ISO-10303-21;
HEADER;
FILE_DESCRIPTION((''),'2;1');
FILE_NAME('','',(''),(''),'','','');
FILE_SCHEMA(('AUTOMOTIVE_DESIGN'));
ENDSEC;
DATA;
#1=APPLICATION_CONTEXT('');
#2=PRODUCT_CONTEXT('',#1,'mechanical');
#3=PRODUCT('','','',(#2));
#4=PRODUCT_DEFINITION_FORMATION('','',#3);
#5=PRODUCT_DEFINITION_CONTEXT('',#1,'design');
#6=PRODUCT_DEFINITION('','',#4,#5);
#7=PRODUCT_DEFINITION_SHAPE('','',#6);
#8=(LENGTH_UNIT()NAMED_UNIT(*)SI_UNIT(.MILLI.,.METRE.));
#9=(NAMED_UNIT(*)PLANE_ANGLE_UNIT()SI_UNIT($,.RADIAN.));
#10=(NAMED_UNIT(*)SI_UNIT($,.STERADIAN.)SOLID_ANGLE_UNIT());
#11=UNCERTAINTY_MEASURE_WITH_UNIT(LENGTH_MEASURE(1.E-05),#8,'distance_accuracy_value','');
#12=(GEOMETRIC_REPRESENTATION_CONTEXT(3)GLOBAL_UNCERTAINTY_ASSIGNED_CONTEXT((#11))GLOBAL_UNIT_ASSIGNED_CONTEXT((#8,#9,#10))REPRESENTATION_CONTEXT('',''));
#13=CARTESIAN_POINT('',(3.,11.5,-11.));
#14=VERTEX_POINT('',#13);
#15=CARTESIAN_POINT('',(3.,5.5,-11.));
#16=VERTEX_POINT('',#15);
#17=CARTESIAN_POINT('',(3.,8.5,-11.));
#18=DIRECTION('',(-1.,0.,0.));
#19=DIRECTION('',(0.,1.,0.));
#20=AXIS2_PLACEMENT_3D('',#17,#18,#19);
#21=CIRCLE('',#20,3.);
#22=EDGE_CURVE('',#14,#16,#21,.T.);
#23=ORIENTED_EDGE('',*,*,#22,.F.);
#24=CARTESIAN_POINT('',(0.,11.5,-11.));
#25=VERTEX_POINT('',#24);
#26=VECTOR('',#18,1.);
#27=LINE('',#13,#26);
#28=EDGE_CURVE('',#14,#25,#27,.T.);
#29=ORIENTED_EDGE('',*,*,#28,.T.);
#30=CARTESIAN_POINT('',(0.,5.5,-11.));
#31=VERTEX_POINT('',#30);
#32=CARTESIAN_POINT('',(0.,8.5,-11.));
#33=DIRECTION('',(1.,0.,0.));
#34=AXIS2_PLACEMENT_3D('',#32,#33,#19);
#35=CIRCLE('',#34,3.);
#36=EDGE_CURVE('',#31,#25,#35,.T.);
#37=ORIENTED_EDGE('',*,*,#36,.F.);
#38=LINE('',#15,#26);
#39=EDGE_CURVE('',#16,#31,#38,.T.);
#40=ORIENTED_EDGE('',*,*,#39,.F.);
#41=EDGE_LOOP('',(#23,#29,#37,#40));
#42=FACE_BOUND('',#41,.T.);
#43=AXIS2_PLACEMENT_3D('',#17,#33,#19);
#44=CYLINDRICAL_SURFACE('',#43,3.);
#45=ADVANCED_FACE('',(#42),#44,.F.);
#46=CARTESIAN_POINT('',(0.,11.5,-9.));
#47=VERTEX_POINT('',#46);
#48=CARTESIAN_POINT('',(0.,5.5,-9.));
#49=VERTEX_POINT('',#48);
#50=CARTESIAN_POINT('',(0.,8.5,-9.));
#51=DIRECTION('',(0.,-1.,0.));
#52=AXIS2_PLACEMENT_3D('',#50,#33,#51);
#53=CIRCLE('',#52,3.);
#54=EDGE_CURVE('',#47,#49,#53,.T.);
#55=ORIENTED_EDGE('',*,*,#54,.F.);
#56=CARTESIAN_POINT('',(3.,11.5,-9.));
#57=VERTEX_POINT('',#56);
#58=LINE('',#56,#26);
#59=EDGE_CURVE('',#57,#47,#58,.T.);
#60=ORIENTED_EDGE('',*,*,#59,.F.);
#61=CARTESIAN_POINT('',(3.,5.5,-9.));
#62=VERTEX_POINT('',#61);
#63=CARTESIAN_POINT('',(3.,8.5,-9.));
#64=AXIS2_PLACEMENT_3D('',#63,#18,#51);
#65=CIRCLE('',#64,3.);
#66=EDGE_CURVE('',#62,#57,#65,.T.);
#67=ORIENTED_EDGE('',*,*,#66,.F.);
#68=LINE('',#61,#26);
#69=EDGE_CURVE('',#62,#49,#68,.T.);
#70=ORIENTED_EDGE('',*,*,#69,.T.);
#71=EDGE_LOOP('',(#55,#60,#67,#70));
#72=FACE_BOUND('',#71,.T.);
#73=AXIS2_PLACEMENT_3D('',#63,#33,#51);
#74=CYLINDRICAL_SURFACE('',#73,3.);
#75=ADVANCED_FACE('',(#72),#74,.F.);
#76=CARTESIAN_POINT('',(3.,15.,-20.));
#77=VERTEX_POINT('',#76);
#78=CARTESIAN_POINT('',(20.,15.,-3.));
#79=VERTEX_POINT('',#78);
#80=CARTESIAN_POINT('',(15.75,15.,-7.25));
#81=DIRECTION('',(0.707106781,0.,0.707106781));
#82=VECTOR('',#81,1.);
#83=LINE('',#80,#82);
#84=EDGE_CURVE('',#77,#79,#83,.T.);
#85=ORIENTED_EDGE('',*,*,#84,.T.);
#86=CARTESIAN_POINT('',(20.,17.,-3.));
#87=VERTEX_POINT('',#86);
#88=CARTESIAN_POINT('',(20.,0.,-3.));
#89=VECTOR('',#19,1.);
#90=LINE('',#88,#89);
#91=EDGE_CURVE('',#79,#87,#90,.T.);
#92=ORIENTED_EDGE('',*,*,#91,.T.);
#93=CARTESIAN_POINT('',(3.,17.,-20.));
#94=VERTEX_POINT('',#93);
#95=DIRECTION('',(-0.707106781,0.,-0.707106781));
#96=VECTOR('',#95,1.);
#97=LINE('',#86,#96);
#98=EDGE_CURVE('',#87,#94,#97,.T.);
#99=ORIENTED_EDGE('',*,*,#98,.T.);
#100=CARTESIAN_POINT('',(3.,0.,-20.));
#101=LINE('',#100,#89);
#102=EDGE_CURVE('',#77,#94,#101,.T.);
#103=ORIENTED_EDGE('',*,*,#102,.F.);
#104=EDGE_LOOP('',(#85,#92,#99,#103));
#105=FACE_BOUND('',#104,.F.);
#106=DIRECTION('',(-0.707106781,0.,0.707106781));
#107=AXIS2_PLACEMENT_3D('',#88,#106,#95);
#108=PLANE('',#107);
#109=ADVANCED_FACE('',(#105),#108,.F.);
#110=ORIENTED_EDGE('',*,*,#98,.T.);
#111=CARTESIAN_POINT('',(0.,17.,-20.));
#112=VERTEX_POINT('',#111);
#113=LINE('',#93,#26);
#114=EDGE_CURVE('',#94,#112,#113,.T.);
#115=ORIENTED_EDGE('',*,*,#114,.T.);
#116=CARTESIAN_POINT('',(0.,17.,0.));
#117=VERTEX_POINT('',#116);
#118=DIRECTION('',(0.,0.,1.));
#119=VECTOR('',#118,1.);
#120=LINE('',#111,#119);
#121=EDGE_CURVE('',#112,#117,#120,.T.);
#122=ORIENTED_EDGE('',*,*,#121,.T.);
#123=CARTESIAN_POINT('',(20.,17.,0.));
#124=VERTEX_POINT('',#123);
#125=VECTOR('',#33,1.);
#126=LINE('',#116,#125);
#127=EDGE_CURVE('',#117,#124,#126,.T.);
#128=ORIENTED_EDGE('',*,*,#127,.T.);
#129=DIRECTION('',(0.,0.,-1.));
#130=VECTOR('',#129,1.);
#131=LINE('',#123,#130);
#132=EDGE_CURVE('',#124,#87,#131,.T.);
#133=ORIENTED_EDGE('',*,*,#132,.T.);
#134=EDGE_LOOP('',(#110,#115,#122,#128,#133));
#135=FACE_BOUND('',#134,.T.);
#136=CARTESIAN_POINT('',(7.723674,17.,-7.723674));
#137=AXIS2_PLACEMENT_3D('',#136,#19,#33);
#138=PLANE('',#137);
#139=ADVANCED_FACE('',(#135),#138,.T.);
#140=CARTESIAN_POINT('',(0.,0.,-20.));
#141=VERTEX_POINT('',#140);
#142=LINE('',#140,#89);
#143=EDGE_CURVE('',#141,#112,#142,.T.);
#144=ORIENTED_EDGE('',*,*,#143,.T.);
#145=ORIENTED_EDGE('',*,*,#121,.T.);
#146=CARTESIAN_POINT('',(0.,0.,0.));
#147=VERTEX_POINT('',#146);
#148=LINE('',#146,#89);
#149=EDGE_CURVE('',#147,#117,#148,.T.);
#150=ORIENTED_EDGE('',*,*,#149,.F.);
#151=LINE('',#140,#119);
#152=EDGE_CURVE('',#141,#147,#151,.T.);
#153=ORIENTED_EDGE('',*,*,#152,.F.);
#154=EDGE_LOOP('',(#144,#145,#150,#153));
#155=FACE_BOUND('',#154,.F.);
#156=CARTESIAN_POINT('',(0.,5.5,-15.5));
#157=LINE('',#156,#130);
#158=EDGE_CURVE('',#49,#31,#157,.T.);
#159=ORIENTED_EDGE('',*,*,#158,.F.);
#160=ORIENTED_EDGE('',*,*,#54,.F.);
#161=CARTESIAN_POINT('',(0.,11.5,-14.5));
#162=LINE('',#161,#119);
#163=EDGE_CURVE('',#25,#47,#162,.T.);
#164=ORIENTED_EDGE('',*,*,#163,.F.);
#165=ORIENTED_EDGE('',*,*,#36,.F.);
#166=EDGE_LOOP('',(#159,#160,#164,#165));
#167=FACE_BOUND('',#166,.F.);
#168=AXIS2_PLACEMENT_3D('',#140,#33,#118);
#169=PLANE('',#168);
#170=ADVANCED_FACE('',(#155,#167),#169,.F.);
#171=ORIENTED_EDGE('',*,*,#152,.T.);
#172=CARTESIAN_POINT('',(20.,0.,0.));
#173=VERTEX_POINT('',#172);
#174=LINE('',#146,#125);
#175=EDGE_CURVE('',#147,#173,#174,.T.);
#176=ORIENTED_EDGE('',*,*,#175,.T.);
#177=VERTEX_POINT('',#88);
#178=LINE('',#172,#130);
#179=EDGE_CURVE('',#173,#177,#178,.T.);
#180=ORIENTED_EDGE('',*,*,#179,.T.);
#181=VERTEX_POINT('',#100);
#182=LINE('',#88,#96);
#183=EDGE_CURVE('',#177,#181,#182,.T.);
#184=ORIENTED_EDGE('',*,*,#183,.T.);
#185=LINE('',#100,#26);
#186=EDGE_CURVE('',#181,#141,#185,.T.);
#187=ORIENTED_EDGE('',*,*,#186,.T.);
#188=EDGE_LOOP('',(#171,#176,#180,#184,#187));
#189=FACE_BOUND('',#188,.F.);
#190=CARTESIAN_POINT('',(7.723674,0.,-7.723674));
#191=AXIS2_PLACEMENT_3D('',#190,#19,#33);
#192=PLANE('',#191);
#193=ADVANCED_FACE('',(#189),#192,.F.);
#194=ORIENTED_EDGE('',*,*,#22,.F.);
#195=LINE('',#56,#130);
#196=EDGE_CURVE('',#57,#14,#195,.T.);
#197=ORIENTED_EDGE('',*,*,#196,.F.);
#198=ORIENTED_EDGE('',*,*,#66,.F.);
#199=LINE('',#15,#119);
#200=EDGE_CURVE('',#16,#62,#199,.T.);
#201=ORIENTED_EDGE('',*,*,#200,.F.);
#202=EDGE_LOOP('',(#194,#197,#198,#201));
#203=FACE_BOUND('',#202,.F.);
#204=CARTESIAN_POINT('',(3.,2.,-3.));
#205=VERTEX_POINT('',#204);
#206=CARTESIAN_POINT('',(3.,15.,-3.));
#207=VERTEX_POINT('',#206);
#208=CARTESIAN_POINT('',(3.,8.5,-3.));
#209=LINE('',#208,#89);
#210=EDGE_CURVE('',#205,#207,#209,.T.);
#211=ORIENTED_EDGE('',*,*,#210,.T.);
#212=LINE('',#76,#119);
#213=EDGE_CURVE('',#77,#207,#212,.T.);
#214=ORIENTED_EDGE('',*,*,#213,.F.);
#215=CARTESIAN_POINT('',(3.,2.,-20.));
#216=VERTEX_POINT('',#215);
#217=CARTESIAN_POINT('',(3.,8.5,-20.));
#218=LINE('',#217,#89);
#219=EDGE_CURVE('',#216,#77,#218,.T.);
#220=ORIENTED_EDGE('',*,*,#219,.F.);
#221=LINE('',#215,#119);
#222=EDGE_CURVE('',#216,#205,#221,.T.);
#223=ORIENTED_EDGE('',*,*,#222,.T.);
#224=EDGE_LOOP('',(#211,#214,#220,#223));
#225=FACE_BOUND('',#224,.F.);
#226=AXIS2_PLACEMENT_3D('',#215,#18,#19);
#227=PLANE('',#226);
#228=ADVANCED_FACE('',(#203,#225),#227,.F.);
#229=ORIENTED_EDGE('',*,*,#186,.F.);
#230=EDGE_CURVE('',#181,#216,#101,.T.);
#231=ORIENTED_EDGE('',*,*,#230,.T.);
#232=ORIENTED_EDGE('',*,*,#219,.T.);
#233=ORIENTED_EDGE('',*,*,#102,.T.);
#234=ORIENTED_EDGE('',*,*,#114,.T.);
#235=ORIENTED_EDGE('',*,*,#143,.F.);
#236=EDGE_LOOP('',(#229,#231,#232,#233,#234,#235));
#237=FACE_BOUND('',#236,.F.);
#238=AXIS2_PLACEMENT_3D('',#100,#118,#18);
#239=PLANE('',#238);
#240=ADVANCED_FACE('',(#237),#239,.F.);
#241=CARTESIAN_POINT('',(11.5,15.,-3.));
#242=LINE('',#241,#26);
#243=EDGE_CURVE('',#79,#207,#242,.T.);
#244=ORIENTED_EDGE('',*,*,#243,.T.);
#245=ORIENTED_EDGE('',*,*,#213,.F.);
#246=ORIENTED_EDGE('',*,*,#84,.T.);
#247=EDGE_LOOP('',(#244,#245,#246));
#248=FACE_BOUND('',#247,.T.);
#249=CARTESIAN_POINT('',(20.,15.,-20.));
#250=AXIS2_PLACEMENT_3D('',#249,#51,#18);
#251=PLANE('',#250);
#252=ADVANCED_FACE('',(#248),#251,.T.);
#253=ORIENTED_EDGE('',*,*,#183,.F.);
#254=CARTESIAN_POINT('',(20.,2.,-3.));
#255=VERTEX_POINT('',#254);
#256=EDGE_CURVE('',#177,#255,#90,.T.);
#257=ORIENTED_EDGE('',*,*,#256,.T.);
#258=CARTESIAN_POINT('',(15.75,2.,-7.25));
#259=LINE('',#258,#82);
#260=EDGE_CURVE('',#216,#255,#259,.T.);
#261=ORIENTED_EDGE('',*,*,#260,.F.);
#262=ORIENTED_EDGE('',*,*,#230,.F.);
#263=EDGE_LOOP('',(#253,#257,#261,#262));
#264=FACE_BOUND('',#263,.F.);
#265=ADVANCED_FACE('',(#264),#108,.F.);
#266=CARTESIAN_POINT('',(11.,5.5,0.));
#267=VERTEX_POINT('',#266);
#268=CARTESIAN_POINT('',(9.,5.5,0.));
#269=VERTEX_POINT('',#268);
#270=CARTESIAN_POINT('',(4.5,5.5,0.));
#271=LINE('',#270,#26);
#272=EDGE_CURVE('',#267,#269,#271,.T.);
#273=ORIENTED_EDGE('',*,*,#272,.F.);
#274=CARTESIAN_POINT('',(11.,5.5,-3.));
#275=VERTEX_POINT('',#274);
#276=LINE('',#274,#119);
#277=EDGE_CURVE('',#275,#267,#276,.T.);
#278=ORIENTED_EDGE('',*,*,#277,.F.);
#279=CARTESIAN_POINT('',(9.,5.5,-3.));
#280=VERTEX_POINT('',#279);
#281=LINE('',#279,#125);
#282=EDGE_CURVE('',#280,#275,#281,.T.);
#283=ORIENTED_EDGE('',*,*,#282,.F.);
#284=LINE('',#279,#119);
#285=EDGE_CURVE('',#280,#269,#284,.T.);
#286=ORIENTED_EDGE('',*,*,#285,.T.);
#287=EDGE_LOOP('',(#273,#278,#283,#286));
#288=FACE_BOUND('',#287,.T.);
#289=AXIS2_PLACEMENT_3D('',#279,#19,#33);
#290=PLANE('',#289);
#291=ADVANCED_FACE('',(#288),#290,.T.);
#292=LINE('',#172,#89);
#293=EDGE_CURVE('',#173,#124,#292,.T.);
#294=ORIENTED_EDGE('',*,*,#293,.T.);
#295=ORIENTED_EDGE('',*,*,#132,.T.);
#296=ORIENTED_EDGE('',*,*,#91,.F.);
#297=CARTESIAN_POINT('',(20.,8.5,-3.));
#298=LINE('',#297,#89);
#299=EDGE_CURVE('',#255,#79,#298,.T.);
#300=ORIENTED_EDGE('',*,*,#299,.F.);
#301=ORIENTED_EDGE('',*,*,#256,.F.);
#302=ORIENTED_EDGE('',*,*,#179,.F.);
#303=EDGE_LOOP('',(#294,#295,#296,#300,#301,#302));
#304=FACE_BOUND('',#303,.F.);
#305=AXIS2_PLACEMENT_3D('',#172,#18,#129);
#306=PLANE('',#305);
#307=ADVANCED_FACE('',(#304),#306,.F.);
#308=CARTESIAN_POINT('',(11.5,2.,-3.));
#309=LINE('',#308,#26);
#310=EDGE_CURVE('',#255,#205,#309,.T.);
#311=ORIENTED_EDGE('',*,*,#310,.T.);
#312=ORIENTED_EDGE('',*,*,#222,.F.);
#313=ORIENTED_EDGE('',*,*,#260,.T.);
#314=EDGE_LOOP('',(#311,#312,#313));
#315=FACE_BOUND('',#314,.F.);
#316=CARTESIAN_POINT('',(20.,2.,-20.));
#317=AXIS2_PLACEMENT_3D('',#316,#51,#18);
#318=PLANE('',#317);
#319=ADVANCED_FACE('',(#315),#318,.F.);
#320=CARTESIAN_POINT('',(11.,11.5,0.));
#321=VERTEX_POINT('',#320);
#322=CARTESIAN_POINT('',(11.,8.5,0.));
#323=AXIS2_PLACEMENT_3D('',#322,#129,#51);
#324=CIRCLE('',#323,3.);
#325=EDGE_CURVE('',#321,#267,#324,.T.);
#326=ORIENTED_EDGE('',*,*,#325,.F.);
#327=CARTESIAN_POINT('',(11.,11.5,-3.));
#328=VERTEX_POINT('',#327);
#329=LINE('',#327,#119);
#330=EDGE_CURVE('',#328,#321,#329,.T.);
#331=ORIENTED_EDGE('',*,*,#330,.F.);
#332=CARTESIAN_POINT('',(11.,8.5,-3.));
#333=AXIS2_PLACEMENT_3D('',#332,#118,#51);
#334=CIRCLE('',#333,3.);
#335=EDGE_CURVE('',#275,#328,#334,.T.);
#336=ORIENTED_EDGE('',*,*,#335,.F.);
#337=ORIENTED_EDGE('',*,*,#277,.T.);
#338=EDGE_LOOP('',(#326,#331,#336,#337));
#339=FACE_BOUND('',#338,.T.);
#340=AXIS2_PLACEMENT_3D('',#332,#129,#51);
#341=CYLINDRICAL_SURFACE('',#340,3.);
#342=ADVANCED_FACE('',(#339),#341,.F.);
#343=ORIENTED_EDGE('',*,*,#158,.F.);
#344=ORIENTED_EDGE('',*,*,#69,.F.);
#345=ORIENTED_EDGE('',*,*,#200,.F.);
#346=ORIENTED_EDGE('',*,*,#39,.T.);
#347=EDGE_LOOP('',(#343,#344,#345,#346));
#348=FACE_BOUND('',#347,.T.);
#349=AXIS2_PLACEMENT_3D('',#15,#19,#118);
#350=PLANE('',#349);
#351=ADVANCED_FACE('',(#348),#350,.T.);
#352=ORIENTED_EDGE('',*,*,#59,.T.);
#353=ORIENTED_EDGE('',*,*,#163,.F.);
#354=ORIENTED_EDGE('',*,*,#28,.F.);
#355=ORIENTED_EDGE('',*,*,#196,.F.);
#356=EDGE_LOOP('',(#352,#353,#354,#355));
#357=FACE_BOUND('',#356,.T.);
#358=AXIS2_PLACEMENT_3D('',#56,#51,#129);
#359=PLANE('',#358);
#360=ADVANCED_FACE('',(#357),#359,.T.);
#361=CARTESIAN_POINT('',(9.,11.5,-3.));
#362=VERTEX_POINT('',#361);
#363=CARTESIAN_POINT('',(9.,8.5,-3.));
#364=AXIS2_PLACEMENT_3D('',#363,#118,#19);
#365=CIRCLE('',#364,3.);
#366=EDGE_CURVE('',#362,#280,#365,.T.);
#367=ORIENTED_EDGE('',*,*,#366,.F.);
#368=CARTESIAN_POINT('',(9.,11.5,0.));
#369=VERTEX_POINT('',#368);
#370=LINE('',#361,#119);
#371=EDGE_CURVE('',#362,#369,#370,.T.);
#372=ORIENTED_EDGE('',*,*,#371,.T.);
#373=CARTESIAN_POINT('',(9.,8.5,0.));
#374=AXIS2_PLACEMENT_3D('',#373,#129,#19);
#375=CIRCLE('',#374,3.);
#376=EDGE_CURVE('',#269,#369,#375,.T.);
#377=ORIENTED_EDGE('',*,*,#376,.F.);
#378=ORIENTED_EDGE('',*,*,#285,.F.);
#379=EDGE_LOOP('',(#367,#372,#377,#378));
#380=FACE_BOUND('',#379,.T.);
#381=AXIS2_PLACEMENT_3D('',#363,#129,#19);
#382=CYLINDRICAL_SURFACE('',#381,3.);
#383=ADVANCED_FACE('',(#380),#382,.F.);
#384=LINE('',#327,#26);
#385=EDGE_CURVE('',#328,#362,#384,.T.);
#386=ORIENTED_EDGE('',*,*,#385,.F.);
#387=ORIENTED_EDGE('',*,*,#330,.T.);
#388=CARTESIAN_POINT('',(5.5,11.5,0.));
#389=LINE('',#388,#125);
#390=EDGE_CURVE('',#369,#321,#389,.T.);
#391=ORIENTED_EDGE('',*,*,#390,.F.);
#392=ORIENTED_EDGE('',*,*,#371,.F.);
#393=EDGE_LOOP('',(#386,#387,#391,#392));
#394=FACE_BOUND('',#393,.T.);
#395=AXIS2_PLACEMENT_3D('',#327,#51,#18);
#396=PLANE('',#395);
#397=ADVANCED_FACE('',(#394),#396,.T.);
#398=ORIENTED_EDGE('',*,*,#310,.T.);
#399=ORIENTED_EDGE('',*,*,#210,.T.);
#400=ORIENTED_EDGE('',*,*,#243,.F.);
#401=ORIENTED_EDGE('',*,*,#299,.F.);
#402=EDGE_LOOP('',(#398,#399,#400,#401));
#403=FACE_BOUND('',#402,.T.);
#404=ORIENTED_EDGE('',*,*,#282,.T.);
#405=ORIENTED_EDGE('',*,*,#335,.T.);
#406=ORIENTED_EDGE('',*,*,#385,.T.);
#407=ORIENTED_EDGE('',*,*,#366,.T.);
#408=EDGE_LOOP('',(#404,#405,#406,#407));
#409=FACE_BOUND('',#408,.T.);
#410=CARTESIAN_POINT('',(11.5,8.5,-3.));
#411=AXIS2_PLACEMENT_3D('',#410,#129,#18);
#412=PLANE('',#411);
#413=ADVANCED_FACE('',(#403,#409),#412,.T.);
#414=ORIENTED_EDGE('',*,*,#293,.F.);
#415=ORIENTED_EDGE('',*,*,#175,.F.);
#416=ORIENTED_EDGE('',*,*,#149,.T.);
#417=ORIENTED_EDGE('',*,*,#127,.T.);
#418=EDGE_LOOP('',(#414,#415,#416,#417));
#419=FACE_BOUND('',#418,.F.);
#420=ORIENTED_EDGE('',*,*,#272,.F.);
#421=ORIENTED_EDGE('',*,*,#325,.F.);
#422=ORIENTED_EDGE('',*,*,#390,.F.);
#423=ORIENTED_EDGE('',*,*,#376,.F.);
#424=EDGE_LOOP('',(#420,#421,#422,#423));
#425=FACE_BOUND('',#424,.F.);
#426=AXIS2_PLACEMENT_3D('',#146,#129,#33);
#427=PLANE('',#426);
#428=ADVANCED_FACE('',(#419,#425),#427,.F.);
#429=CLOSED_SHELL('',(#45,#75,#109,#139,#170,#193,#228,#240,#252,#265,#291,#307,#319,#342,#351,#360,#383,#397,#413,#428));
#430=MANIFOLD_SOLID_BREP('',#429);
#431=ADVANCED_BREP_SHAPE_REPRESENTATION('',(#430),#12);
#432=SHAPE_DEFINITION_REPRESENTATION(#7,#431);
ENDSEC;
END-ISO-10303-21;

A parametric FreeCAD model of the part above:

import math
import FreeCAD as App
import Part
import Sketcher
Q = App.Units.Quantity


def add_polygon(sketch, points):
    """Adds a closed chain of lines whose ends are joined by coincident constraints."""
    first, n = sketch.GeometryCount, len(points)
    for a, b in zip(points, points[1:] + points[:1]):
        sketch.addGeometry(Part.LineSegment(App.Vector(*a, 0), App.Vector(*b, 0)), False)
    for i in range(n):
        sketch.addConstraint(Sketcher.Constraint("Coincident", first + i, 2, first + (i + 1) % n, 1))

doc = App.newDocument("Part")
body = doc.addObject("PartDesign::Body", "Body")

# Sketch on XZ plane
sketch1 = body.newObject("Sketcher::SketchObject", "Sketch")
sketch1.AttachmentSupport = (doc.getObject("XZ_Plane"), [""])
sketch1.MapMode = "FlatFace"
add_polygon(sketch1, [(0, 0), (20, 0), (20, -3), (3, -20), (0, -20)])  # lines 0-4
sketch1.addConstraint(Sketcher.Constraint("Horizontal", 0))
sketch1.addConstraint(Sketcher.Constraint("Vertical", 1))
sketch1.addConstraint(Sketcher.Constraint("Horizontal", 3))
sketch1.addConstraint(Sketcher.Constraint("Vertical", 4))
sketch1.addConstraint(Sketcher.Constraint("Coincident", 4, 2, -1, 1))
sketch1.addConstraint(Sketcher.Constraint("Equal", 3, 1))
sketch1.addConstraint(Sketcher.Constraint("Equal", 0, 4))
sketch1.addConstraint(Sketcher.Constraint("DistanceX", 0, 1, 0, 2, Q("20 mm")))
sketch1.addConstraint(Sketcher.Constraint("DistanceX", 3, 2, 3, 1, Q("3 mm")))
pad1 = body.newObject("PartDesign::Pad", "Pad")
pad1.Profile = sketch1
pad1.Length = 17
pad1.Reversed = True

# Sketch on XY plane
sketch2 = body.newObject("Sketcher::SketchObject", "Sketch001")
sketch2.AttachmentSupport = (doc.getObject("XY_Plane"), [""])
sketch2.MapMode = "FlatFace"
sketch2.AttachmentOffset = App.Placement(App.Vector(0, 0, -20), App.Rotation())
add_polygon(sketch2, [(20, 15), (20, 2), (3, 2), (3, 15)])  # lines 0-3
sketch2.addConstraint(Sketcher.Constraint("Vertical", 0))
sketch2.addConstraint(Sketcher.Constraint("Horizontal", 1))
sketch2.addConstraint(Sketcher.Constraint("Vertical", 2))
sketch2.addConstraint(Sketcher.Constraint("Horizontal", 3))
sketch2.addConstraint(Sketcher.Constraint("DistanceX", 1, 2, 1, 1, Q("17 mm")))
sketch2.addConstraint(Sketcher.Constraint("DistanceY", 0, 2, 0, 1, Q("13 mm")))
sketch2.addConstraint(Sketcher.Constraint("DistanceX", -1, 1, 0, 2, Q("20 mm")))
sketch2.addConstraint(Sketcher.Constraint("DistanceY", -1, 1, 0, 2, Q("2 mm")))
pocket1 = body.newObject("PartDesign::Pocket", "Pocket")
pocket1.Profile = sketch2
pocket1.Length = 17
pocket1.Reversed = True

# Sketch on YZ plane
sketch3 = body.newObject("Sketcher::SketchObject", "Sketch002")
sketch3.AttachmentSupport = (doc.getObject("YZ_Plane"), [""])
sketch3.MapMode = "FlatFace"
sketch3.AttachmentOffset = App.Placement(App.Vector(0, 0, 3), App.Rotation())
sketch3.addGeometry(Part.LineSegment(App.Vector(11.5, -11, 0), App.Vector(11.5, -9, 0)), False)
sketch3.addGeometry(Part.ArcOfCircle(Part.Circle(App.Vector(8.5, -9, 0), App.Vector(0, 0, 1), 3), math.radians(0), math.radians(180)), False)
sketch3.addGeometry(Part.LineSegment(App.Vector(5.5, -9, 0), App.Vector(5.5, -11, 0)), False)
sketch3.addGeometry(Part.ArcOfCircle(Part.Circle(App.Vector(8.5, -11, 0), App.Vector(0, 0, 1), 3), math.radians(180), math.radians(360)), False)
sketch3.addConstraint(Sketcher.Constraint("Tangent", 0, 2, 1, 1))
sketch3.addConstraint(Sketcher.Constraint("Tangent", 1, 2, 2, 1))
sketch3.addConstraint(Sketcher.Constraint("Tangent", 2, 2, 3, 1))
sketch3.addConstraint(Sketcher.Constraint("Tangent", 3, 2, 0, 1))
sketch3.addConstraint(Sketcher.Constraint("Vertical", 0))
sketch3.addConstraint(Sketcher.Constraint("Vertical", 2))
sketch3.addConstraint(Sketcher.Constraint("Radius", 1, Q("3 mm")))
sketch3.addConstraint(Sketcher.Constraint("DistanceY", 0, 1, 0, 2, Q("2 mm")))
sketch3.addConstraint(Sketcher.Constraint("DistanceY", 1, 3, -1, 1, Q("9 mm")))
sketch3.addConstraint(Sketcher.Constraint("DistanceX", -1, 1, 1, 3, Q("8.5 mm")))
pocket2 = body.newObject("PartDesign::Pocket", "Pocket001")
pocket2.Profile = sketch3
pocket2.Type = "UpToFirst"

# Sketch on XY plane
sketch4 = body.newObject("Sketcher::SketchObject", "Sketch003")
sketch4.AttachmentSupport = (doc.getObject("XY_Plane"), [""])
sketch4.MapMode = "FlatFace"
sketch4.AttachmentOffset = App.Placement(App.Vector(0, 0, -3), App.Rotation())
sketch4.addGeometry(Part.LineSegment(App.Vector(9, 11.5, 0), App.Vector(11, 11.5, 0)), False)
sketch4.addGeometry(Part.ArcOfCircle(Part.Circle(App.Vector(11, 8.5, 0), App.Vector(0, 0, 1), 3), math.radians(-90), math.radians(90)), False)
sketch4.addGeometry(Part.LineSegment(App.Vector(11, 5.5, 0), App.Vector(9, 5.5, 0)), False)
sketch4.addGeometry(Part.ArcOfCircle(Part.Circle(App.Vector(9, 8.5, 0), App.Vector(0, 0, 1), 3), math.radians(90), math.radians(270)), False)
sketch4.addConstraint(Sketcher.Constraint("Tangent", 0, 2, 1, 2))
sketch4.addConstraint(Sketcher.Constraint("Tangent", 1, 1, 2, 1))
sketch4.addConstraint(Sketcher.Constraint("Tangent", 2, 2, 3, 2))
sketch4.addConstraint(Sketcher.Constraint("Tangent", 3, 1, 0, 1))
sketch4.addConstraint(Sketcher.Constraint("Horizontal", 0))
sketch4.addConstraint(Sketcher.Constraint("Horizontal", 2))
sketch4.addConstraint(Sketcher.Constraint("Radius", 1, Q("3 mm")))
sketch4.addConstraint(Sketcher.Constraint("DistanceX", 0, 1, 0, 2, Q("2 mm")))
sketch4.addConstraint(Sketcher.Constraint("DistanceX", -1, 1, 1, 3, Q("11 mm")))
sketch4.addConstraint(Sketcher.Constraint("DistanceY", -1, 1, 1, 3, Q("8.5 mm")))
pocket3 = body.newObject("PartDesign::Pocket", "Pocket002")
pocket3.Profile = sketch4
pocket3.Type = "UpToFirst"
pocket3.Reversed = True

doc.recompute()
